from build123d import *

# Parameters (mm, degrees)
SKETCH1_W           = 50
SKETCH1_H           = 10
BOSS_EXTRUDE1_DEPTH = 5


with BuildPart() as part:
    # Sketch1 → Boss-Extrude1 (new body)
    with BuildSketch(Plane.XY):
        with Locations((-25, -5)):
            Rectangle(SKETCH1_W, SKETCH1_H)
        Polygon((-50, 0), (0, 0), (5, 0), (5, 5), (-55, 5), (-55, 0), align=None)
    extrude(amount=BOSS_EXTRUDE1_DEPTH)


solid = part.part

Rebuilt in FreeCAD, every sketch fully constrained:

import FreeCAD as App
import Part
import Sketcher

V = App.Vector
Q = App.Units.Quantity

doc = App.newDocument("Part")
body = doc.addObject("PartDesign::Body", "Body")

sketch1 = body.newObject("Sketcher::SketchObject", "Sketch")
sketch1.AttachmentSupport = (doc.getObject("XY_Plane"), [""])
sketch1.MapMode = "FlatFace"
sketch1.addGeometry([
    Part.LineSegment(V(-50, 0, 0), V(-50, -10, 0)),
    Part.LineSegment(V(-50, -10, 0), V(0, -10, 0)),
    Part.LineSegment(V(0, -10, 0), V(0, 0, 0)),
    Part.LineSegment(V(0, 0, 0), V(5, 0, 0)),
    Part.LineSegment(V(5, 0, 0), V(5, 5, 0)),
    Part.LineSegment(V(5, 5, 0), V(-55, 5, 0)),
    Part.LineSegment(V(-55, 5, 0), V(-55, 0, 0)),
    Part.LineSegment(V(-55, 0, 0), V(-50, 0, 0)),
], False)
sketch1.addConstraint([
    Sketcher.Constraint("Coincident", 0, 2, 1, 1),
    Sketcher.Constraint("Coincident", 1, 2, 2, 1),
    Sketcher.Constraint("Coincident", 2, 2, 3, 1),
    Sketcher.Constraint("Coincident", 3, 2, 4, 1),
    Sketcher.Constraint("Coincident", 4, 2, 5, 1),
    Sketcher.Constraint("Coincident", 5, 2, 6, 1),
    Sketcher.Constraint("Coincident", 6, 2, 7, 1),
    Sketcher.Constraint("Coincident", 7, 2, 0, 1),
    Sketcher.Constraint("Vertical", 0),
    Sketcher.Constraint("Horizontal", 1),
    Sketcher.Constraint("Vertical", 2),
    Sketcher.Constraint("Horizontal", 3),
    Sketcher.Constraint("Vertical", 4),
    Sketcher.Constraint("Horizontal", 5),
    Sketcher.Constraint("Vertical", 6),
    Sketcher.Constraint("Horizontal", 7),
    Sketcher.Constraint("Coincident", 2, 2, -1, 1),
    Sketcher.Constraint("PointOnObject", 6, 2, -1),
    Sketcher.Constraint("Equal", 3, 7),
    Sketcher.Constraint("Equal", 7, 4),
    Sketcher.Constraint("DistanceX", 1, 1, 1, 2, Q("50 mm")),
    Sketcher.Constraint("DistanceX", 3, 1, 3, 2, Q("5 mm")),
    Sketcher.Constraint("DistanceY", 0, 2, 0, 1, Q("10 mm")),
])
pad1 = body.newObject("PartDesign::Pad", "Pad")
pad1.Profile = sketch1
pad1.Length = 5

doc.recompute()
